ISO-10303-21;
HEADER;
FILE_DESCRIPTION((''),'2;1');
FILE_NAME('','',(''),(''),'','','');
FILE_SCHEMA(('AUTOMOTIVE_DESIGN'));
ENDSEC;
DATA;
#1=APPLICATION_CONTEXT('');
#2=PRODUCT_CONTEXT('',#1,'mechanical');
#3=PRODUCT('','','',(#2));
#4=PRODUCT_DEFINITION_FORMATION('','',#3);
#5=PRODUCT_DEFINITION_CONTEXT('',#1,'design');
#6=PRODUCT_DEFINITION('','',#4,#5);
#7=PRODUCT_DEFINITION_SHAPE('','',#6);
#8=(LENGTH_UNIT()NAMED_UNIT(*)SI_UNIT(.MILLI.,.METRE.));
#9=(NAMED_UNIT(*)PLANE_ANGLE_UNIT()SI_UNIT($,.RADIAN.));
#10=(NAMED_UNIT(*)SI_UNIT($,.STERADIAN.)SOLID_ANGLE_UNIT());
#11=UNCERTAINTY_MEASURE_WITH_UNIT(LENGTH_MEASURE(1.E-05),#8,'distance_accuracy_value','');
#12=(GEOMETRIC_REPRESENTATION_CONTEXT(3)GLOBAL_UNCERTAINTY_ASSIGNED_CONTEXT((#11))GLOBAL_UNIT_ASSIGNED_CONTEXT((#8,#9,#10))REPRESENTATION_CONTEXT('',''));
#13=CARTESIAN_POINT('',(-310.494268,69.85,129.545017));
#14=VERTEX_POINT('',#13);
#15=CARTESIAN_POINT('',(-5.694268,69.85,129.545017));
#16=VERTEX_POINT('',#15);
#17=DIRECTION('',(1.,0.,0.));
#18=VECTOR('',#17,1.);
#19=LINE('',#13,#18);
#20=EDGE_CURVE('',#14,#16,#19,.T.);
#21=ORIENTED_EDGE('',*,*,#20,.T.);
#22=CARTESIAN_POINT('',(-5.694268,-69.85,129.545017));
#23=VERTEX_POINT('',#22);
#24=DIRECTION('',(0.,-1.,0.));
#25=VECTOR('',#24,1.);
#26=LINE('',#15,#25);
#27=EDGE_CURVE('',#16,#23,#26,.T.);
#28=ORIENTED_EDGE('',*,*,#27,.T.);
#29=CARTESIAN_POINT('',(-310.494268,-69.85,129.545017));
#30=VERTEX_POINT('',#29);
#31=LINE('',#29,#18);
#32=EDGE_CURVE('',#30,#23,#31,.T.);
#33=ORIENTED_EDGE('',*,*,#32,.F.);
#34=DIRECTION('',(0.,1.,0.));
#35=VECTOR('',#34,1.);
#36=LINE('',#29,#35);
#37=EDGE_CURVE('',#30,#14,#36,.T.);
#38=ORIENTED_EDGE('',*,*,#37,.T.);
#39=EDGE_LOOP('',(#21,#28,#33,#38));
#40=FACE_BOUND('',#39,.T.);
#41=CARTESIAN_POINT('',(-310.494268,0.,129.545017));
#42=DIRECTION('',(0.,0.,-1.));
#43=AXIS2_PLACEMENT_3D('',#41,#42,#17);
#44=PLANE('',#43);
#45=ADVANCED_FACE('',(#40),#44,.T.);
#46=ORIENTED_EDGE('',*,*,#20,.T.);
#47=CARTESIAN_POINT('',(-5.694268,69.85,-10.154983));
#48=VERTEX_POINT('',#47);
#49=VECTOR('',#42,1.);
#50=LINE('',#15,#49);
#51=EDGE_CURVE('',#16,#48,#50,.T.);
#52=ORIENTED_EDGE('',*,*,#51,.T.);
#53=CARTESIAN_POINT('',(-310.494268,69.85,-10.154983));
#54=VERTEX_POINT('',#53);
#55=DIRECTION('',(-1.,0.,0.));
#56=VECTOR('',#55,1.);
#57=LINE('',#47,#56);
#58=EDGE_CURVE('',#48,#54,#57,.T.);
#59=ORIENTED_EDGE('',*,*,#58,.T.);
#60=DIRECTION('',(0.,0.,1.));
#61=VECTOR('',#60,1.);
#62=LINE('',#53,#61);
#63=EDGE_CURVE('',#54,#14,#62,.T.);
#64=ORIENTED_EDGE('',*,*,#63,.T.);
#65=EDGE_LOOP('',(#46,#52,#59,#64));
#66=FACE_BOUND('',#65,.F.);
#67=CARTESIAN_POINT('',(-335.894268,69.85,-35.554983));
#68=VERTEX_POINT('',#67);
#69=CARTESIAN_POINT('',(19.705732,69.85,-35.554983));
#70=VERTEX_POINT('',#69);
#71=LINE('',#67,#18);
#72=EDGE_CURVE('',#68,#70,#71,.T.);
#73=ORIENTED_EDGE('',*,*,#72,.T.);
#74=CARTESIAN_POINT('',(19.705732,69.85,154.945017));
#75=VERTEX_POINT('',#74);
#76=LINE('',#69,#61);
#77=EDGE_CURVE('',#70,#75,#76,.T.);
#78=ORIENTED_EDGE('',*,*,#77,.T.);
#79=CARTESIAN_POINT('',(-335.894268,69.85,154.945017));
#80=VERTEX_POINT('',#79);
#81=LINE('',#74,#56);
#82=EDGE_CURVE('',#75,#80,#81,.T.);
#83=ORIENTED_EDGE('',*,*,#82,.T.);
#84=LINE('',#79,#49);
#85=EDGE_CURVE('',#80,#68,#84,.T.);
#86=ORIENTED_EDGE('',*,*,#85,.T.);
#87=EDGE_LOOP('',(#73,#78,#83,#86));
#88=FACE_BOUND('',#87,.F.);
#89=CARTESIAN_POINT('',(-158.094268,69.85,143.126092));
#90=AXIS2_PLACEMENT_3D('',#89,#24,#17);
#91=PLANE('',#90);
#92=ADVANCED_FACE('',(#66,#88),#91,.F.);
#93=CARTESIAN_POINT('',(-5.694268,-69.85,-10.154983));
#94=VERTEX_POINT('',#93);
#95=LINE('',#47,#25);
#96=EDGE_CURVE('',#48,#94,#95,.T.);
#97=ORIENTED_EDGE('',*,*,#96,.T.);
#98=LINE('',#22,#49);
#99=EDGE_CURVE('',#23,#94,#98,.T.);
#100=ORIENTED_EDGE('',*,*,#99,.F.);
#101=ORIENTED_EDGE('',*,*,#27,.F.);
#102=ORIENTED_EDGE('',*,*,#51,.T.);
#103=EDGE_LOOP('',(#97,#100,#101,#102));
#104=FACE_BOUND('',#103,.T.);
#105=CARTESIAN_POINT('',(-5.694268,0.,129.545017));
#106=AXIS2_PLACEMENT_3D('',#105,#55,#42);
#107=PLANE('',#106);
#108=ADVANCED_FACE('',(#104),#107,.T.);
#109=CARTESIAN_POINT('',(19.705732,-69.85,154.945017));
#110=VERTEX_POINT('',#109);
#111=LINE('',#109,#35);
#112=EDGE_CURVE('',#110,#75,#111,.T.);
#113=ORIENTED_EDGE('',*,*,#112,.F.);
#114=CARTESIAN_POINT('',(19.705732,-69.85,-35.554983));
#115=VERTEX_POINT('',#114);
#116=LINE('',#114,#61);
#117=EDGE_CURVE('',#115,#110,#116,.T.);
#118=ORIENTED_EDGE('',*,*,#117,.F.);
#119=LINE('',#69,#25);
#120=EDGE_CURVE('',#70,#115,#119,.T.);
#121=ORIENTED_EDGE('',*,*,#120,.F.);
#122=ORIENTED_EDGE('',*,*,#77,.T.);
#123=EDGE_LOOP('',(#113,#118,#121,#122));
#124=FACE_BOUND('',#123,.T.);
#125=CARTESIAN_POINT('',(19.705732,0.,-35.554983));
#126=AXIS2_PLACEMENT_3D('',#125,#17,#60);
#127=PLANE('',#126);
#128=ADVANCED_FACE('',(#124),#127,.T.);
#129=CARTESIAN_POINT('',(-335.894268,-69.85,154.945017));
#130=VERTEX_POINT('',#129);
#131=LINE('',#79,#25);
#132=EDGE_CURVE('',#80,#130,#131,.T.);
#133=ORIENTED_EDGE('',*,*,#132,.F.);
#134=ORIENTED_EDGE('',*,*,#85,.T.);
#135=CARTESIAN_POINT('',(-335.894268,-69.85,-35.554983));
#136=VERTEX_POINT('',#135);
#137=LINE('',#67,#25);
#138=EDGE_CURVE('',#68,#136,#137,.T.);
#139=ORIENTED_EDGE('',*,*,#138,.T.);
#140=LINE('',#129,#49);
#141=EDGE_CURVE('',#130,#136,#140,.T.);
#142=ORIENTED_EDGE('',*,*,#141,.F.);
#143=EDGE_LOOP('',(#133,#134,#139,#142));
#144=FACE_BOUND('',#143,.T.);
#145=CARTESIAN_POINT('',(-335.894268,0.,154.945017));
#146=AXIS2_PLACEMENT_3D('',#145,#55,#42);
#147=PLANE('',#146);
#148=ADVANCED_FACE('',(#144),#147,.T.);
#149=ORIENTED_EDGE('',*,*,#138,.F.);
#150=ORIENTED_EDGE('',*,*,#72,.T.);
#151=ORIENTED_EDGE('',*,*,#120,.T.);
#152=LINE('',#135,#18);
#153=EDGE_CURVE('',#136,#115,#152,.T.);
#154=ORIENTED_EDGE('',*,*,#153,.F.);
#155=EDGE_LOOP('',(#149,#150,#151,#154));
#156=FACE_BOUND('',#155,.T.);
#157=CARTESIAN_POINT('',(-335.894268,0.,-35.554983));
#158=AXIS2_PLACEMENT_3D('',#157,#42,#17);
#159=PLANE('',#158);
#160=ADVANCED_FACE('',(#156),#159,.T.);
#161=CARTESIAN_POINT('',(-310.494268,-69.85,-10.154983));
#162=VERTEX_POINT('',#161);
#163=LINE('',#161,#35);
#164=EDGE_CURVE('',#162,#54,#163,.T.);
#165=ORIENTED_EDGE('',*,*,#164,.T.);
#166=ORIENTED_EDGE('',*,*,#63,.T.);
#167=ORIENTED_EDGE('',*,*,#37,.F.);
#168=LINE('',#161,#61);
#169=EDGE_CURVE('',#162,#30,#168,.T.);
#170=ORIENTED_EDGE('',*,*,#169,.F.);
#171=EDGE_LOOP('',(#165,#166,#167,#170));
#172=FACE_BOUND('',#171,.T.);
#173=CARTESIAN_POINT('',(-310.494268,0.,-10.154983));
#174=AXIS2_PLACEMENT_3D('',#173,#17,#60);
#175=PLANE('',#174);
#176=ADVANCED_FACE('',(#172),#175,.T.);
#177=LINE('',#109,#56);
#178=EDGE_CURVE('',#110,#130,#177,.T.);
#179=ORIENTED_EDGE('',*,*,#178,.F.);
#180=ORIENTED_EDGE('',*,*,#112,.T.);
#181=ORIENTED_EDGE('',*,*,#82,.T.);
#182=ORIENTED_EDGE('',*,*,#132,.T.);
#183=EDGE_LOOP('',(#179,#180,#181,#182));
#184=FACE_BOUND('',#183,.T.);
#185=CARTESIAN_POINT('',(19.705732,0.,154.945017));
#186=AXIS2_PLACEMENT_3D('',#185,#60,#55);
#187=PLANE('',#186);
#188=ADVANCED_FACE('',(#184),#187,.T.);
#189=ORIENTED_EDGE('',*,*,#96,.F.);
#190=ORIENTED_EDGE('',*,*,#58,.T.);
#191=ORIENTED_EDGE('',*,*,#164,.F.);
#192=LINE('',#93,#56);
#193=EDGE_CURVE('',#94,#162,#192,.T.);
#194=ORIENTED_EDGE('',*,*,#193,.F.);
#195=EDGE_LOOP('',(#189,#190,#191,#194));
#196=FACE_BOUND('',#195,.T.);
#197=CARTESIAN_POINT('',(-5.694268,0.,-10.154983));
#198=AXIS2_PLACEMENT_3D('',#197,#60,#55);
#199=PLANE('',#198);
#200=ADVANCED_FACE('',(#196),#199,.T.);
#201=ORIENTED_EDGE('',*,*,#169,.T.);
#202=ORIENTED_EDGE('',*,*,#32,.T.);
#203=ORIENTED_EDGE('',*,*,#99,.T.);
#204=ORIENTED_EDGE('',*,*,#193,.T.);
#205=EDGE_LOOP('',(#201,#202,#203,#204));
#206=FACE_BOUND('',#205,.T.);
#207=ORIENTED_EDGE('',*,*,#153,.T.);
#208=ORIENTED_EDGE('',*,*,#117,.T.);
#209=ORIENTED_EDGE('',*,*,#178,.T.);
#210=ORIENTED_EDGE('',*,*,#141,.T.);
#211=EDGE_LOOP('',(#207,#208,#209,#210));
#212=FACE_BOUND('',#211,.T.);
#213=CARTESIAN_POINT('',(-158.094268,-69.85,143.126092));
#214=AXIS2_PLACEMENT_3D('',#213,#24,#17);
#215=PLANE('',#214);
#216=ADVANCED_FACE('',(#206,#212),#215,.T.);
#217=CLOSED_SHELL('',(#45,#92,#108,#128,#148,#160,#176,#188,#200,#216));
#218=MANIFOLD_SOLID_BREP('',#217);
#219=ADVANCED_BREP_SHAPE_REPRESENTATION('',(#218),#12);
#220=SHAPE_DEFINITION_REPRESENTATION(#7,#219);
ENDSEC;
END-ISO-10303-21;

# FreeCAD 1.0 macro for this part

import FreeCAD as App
import Part
import Sketcher

V = App.Vector
Q = App.Units.Quantity


def add_polygon(sketch, points):
    """Adds a closed chain of lines whose ends are joined by coincident constraints."""
    first, n = sketch.GeometryCount, len(points)
    for a, b in zip(points, points[1:] + points[:1]):
        sketch.addGeometry(Part.LineSegment(App.Vector(*a, 0), App.Vector(*b, 0)), False)
    for i in range(n):
        sketch.addConstraint(Sketcher.Constraint("Coincident", first + i, 2, first + (i + 1) % n, 1))

doc = App.newDocument("Part")
body = doc.addObject("PartDesign::Body", "Body")

# Sketch on XZ plane
sketch1 = body.newObject("Sketcher::SketchObject", "Sketch")
sketch1.AttachmentSupport = (doc.getObject("XZ_Plane"), [""])
sketch1.MapMode = "FlatFace"
add_polygon(sketch1, [(20, 155), (-336, 155), (-336, -36), (20, -36)])  # lines 0-3
add_polygon(sketch1, [(-310, 130), (-6, 130), (-6, -10), (-310, -10)])  # lines 4-7
sketch1.addConstraint(Sketcher.Constraint("Horizontal", 0))
sketch1.addConstraint(Sketcher.Constraint("Vertical", 1))
sketch1.addConstraint(Sketcher.Constraint("Horizontal", 2))
sketch1.addConstraint(Sketcher.Constraint("Vertical", 3))
sketch1.addConstraint(Sketcher.Constraint("Horizontal", 4))
sketch1.addConstraint(Sketcher.Constraint("Vertical", 5))
sketch1.addConstraint(Sketcher.Constraint("Horizontal", 6))
sketch1.addConstraint(Sketcher.Constraint("Vertical", 7))
sketch1.addConstraint(Sketcher.Constraint("DistanceX", 0, 2, 0, 1, Q("14 in")))
sketch1.addConstraint(Sketcher.Constraint("DistanceX", 4, 1, 4, 2, Q("12 in")))
sketch1.addConstraint(Sketcher.Constraint("DistanceY", 1, 2, 1, 1, Q("7.5 in")))
sketch1.addConstraint(Sketcher.Constraint("DistanceY", 5, 2, 5, 1, Q("5.5 in")))
sketch1.addConstraint(Sketcher.Constraint("DistanceX", 4, 2, 3, 2, Q("1 in")))
sketch1.addConstraint(Sketcher.Constraint("DistanceY", 4, 2, 3, 2, Q("1 in")))
sketch1.addConstraint(Sketcher.Constraint("DistanceX", 0, 2, -1, 1, Q("335.894268 mm")))
sketch1.addConstraint(Sketcher.Constraint("DistanceY", -1, 1, 0, 2, Q("154.945017 mm")))
pad1 = body.newObject("PartDesign::Pad", "Pad")
pad1.Profile = sketch1
pad1.Length = Q("5.5 in")
pad1.Midplane = True

doc.recompute()
